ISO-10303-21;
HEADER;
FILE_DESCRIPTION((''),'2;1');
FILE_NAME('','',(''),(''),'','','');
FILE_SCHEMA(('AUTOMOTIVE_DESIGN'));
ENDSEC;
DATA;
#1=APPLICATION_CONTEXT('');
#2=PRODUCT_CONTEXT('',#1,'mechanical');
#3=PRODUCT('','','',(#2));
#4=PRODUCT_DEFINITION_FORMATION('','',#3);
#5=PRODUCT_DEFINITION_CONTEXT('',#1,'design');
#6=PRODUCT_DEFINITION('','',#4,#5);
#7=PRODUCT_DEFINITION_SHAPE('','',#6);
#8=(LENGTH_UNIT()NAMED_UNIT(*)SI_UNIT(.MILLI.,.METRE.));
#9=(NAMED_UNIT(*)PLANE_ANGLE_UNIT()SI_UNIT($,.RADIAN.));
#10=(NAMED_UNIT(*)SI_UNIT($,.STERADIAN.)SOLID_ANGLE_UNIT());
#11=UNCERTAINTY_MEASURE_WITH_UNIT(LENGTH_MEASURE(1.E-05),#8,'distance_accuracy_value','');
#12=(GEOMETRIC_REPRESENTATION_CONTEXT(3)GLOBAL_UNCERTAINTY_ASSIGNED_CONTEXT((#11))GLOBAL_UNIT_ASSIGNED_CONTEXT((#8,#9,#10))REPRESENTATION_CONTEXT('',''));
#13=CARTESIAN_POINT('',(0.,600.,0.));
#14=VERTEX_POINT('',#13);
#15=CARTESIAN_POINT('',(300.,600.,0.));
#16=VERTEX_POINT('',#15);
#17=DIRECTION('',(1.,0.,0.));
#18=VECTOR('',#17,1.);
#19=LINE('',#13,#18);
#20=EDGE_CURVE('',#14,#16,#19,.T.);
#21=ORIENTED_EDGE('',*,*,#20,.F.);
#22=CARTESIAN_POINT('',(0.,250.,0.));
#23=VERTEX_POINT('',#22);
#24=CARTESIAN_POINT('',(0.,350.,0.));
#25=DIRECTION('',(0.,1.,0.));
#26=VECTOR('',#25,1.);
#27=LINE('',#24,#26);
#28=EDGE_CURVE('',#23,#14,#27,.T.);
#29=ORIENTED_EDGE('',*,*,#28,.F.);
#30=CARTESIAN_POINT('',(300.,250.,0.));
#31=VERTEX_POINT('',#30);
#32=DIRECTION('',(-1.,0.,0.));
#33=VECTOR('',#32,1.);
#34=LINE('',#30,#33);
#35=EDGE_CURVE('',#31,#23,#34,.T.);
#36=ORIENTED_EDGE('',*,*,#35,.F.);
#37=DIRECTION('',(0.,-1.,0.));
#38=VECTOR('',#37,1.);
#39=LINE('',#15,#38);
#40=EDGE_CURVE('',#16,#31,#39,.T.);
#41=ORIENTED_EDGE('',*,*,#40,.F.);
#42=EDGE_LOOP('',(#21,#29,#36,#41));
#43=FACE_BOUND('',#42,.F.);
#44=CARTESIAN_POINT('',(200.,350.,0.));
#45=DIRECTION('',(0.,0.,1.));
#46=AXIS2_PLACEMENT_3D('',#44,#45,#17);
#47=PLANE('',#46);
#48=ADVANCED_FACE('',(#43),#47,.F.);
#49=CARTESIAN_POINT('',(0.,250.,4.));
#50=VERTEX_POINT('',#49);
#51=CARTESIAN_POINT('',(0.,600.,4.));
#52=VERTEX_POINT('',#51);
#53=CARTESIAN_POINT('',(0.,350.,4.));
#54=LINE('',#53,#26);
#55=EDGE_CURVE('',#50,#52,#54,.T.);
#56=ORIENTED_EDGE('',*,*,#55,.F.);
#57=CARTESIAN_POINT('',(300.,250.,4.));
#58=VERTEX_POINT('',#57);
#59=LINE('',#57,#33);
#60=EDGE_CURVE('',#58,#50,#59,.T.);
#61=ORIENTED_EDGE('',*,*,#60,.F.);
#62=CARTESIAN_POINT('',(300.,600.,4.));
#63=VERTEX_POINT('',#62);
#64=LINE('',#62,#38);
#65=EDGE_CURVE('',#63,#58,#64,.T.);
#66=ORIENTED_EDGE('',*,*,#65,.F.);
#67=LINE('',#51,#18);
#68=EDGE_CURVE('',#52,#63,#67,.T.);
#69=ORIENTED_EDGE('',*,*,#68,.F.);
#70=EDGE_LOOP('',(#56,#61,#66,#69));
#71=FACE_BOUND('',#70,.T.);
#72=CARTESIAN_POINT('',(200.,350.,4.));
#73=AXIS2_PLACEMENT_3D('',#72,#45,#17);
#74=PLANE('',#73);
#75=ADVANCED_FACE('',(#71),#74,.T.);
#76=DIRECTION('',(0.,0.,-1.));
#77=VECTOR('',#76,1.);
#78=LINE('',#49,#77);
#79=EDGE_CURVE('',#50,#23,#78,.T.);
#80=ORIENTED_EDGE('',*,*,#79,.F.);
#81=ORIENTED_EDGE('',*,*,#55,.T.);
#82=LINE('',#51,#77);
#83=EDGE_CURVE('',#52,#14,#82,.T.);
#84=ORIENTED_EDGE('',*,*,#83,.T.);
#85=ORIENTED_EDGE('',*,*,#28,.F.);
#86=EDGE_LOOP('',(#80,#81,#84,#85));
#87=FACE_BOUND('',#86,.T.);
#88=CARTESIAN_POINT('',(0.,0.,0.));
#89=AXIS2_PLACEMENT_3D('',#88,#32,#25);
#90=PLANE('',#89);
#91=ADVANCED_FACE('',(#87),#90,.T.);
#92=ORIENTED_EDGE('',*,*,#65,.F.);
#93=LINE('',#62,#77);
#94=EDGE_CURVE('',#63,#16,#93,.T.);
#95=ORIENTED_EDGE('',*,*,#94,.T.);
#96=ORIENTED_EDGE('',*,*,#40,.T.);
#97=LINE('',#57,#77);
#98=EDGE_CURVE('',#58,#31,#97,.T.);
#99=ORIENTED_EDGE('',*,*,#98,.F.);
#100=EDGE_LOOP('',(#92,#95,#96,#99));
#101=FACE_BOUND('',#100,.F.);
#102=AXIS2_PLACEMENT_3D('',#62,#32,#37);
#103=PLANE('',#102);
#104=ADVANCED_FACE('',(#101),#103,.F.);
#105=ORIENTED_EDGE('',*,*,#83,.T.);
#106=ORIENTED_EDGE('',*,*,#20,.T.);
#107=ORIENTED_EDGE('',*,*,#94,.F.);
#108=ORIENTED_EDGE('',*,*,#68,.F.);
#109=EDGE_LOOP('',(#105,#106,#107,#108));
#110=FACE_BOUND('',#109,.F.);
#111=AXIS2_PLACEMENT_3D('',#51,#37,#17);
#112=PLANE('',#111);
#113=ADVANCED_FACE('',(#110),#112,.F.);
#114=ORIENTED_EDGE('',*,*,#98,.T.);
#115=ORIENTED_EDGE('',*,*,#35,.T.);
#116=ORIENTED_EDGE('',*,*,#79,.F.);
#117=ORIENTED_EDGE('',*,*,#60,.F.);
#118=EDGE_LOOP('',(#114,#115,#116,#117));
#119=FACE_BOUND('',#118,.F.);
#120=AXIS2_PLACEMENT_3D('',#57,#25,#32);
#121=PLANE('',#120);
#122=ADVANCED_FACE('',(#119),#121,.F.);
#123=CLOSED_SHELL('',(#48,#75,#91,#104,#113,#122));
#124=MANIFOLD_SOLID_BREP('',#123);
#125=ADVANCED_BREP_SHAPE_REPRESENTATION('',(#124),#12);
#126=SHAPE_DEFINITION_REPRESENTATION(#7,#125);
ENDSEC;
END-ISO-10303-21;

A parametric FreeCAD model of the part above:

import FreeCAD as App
import Part
import Sketcher

V = App.Vector

doc = App.newDocument("Part")
params = doc.addObject("Spreadsheet::Sheet", "Params")
for row, (alias, value) in enumerate([
    ("sketch1_width", "400 mm"),
    ("sketch1_height", "700 mm"),
    ("pad1_length", "4 mm"),
    ("sketch2_width", "300 mm"),
    ("sketch2_width2", "400 mm"),
    ("sketch2_height", "250 mm"),
    ("sketch2_height2", "700 mm"),
    ("sketch2_height3", "100 mm"),
], start=1):
    params.set(f"A{row}", alias)
    params.set(f"B{row}", "=" + value)
    params.setAlias(f"B{row}", alias)

body = doc.addObject("PartDesign::Body", "Body")

# Sketch on XY plane
sketch1 = body.newObject("Sketcher::SketchObject", "Sketch")
sketch1.AttachmentSupport = (doc.getObject("XY_Plane"), [""])
sketch1.MapMode = "FlatFace"
sketch1.addGeometry([
    Part.LineSegment(V(0, 700, 0), V(0, 0, 0)),
    Part.LineSegment(V(0, 0, 0), V(400, 0, 0)),
    Part.LineSegment(V(400, 0, 0), V(400, 700, 0)),
    Part.LineSegment(V(400, 700, 0), V(0, 700, 0)),
], False)
sketch1.addConstraint([
    Sketcher.Constraint("Coincident", 0, 2, 1, 1),
    Sketcher.Constraint("Coincident", 1, 2, 2, 1),
    Sketcher.Constraint("Coincident", 2, 2, 3, 1),
    Sketcher.Constraint("Coincident", 3, 2, 0, 1),
    Sketcher.Constraint("Vertical", 0),
    Sketcher.Constraint("Horizontal", 1),
    Sketcher.Constraint("Vertical", 2),
    Sketcher.Constraint("Horizontal", 3),
    Sketcher.Constraint("Coincident", 0, 2, -1, 1),
    Sketcher.Constraint("DistanceX", 1, 1, 1, 2, 400.0),
    Sketcher.Constraint("DistanceY", 0, 2, 0, 1, 700.0),
])
sketch1.setExpression("Constraints[9]", "Params.sketch1_width")
sketch1.setExpression("Constraints[10]", "Params.sketch1_height")
pad1 = body.newObject("PartDesign::Pad", "Pad")
pad1.Profile = sketch1
pad1.setExpression("Length", "Params.pad1_length")

# Sketch on XY plane
sketch2 = body.newObject("Sketcher::SketchObject", "Sketch001")
sketch2.AttachmentSupport = (doc.getObject("XY_Plane"), [""])
sketch2.MapMode = "FlatFace"
sketch2.AttachmentOffset = App.Placement(V(0, 0, 4), App.Rotation())
sketch2.addGeometry([
    Part.LineSegment(V(300, 250, 0), V(0, 250, 0)),  # 0
    Part.LineSegment(V(0, 250, 0), V(0, 0, 0)),  # 1
    Part.LineSegment(V(0, 0, 0), V(400, 0, 0)),  # 2
    Part.LineSegment(V(400, 0, 0), V(400, 700, 0)),  # 3
    Part.LineSegment(V(400, 700, 0), V(0, 700, 0)),  # 4
    Part.LineSegment(V(0, 700, 0), V(0, 600, 0)),  # 5
    Part.LineSegment(V(0, 600, 0), V(300, 600, 0)),  # 6
    Part.LineSegment(V(300, 600, 0), V(300, 250, 0)),  # 7
], False)
sketch2.addConstraint([
    Sketcher.Constraint("Coincident", 0, 2, 1, 1),
    Sketcher.Constraint("Coincident", 1, 2, 2, 1),
    Sketcher.Constraint("Coincident", 2, 2, 3, 1),
    Sketcher.Constraint("Coincident", 3, 2, 4, 1),
    Sketcher.Constraint("Coincident", 4, 2, 5, 1),
    Sketcher.Constraint("Coincident", 5, 2, 6, 1),
    Sketcher.Constraint("Coincident", 6, 2, 7, 1),
    Sketcher.Constraint("Coincident", 7, 2, 0, 1),
    Sketcher.Constraint("Horizontal", 0),
    Sketcher.Constraint("Vertical", 1),
    Sketcher.Constraint("Horizontal", 2),
    Sketcher.Constraint("Vertical", 3),
    Sketcher.Constraint("Horizontal", 4),
    Sketcher.Constraint("Vertical", 5),
    Sketcher.Constraint("Horizontal", 6),
    Sketcher.Constraint("Vertical", 7),
    Sketcher.Constraint("Coincident", 1, 2, -1, 1),
    Sketcher.Constraint("PointOnObject", 4, 2, -2),
    Sketcher.Constraint("DistanceX", 0, 2, 0, 1, 300.0),
    Sketcher.Constraint("DistanceX", 2, 1, 2, 2, 400.0),
    Sketcher.Constraint("DistanceY", 1, 2, 1, 1, 250.0),
    Sketcher.Constraint("DistanceY", 3, 1, 3, 2, 700.0),
    Sketcher.Constraint("DistanceY", 5, 2, 5, 1, 100.0),
])
sketch2.setExpression("Constraints[18]", "Params.sketch2_width")
sketch2.setExpression("Constraints[19]", "Params.sketch2_width2")
sketch2.setExpression("Constraints[20]", "Params.sketch2_height")
sketch2.setExpression("Constraints[21]", "Params.sketch2_height2")
sketch2.setExpression("Constraints[22]", "Params.sketch2_height3")
pocket1 = body.newObject("PartDesign::Pocket", "Pocket")
pocket1.Profile = sketch2
pocket1.Type = "ThroughAll"

doc.recompute()
